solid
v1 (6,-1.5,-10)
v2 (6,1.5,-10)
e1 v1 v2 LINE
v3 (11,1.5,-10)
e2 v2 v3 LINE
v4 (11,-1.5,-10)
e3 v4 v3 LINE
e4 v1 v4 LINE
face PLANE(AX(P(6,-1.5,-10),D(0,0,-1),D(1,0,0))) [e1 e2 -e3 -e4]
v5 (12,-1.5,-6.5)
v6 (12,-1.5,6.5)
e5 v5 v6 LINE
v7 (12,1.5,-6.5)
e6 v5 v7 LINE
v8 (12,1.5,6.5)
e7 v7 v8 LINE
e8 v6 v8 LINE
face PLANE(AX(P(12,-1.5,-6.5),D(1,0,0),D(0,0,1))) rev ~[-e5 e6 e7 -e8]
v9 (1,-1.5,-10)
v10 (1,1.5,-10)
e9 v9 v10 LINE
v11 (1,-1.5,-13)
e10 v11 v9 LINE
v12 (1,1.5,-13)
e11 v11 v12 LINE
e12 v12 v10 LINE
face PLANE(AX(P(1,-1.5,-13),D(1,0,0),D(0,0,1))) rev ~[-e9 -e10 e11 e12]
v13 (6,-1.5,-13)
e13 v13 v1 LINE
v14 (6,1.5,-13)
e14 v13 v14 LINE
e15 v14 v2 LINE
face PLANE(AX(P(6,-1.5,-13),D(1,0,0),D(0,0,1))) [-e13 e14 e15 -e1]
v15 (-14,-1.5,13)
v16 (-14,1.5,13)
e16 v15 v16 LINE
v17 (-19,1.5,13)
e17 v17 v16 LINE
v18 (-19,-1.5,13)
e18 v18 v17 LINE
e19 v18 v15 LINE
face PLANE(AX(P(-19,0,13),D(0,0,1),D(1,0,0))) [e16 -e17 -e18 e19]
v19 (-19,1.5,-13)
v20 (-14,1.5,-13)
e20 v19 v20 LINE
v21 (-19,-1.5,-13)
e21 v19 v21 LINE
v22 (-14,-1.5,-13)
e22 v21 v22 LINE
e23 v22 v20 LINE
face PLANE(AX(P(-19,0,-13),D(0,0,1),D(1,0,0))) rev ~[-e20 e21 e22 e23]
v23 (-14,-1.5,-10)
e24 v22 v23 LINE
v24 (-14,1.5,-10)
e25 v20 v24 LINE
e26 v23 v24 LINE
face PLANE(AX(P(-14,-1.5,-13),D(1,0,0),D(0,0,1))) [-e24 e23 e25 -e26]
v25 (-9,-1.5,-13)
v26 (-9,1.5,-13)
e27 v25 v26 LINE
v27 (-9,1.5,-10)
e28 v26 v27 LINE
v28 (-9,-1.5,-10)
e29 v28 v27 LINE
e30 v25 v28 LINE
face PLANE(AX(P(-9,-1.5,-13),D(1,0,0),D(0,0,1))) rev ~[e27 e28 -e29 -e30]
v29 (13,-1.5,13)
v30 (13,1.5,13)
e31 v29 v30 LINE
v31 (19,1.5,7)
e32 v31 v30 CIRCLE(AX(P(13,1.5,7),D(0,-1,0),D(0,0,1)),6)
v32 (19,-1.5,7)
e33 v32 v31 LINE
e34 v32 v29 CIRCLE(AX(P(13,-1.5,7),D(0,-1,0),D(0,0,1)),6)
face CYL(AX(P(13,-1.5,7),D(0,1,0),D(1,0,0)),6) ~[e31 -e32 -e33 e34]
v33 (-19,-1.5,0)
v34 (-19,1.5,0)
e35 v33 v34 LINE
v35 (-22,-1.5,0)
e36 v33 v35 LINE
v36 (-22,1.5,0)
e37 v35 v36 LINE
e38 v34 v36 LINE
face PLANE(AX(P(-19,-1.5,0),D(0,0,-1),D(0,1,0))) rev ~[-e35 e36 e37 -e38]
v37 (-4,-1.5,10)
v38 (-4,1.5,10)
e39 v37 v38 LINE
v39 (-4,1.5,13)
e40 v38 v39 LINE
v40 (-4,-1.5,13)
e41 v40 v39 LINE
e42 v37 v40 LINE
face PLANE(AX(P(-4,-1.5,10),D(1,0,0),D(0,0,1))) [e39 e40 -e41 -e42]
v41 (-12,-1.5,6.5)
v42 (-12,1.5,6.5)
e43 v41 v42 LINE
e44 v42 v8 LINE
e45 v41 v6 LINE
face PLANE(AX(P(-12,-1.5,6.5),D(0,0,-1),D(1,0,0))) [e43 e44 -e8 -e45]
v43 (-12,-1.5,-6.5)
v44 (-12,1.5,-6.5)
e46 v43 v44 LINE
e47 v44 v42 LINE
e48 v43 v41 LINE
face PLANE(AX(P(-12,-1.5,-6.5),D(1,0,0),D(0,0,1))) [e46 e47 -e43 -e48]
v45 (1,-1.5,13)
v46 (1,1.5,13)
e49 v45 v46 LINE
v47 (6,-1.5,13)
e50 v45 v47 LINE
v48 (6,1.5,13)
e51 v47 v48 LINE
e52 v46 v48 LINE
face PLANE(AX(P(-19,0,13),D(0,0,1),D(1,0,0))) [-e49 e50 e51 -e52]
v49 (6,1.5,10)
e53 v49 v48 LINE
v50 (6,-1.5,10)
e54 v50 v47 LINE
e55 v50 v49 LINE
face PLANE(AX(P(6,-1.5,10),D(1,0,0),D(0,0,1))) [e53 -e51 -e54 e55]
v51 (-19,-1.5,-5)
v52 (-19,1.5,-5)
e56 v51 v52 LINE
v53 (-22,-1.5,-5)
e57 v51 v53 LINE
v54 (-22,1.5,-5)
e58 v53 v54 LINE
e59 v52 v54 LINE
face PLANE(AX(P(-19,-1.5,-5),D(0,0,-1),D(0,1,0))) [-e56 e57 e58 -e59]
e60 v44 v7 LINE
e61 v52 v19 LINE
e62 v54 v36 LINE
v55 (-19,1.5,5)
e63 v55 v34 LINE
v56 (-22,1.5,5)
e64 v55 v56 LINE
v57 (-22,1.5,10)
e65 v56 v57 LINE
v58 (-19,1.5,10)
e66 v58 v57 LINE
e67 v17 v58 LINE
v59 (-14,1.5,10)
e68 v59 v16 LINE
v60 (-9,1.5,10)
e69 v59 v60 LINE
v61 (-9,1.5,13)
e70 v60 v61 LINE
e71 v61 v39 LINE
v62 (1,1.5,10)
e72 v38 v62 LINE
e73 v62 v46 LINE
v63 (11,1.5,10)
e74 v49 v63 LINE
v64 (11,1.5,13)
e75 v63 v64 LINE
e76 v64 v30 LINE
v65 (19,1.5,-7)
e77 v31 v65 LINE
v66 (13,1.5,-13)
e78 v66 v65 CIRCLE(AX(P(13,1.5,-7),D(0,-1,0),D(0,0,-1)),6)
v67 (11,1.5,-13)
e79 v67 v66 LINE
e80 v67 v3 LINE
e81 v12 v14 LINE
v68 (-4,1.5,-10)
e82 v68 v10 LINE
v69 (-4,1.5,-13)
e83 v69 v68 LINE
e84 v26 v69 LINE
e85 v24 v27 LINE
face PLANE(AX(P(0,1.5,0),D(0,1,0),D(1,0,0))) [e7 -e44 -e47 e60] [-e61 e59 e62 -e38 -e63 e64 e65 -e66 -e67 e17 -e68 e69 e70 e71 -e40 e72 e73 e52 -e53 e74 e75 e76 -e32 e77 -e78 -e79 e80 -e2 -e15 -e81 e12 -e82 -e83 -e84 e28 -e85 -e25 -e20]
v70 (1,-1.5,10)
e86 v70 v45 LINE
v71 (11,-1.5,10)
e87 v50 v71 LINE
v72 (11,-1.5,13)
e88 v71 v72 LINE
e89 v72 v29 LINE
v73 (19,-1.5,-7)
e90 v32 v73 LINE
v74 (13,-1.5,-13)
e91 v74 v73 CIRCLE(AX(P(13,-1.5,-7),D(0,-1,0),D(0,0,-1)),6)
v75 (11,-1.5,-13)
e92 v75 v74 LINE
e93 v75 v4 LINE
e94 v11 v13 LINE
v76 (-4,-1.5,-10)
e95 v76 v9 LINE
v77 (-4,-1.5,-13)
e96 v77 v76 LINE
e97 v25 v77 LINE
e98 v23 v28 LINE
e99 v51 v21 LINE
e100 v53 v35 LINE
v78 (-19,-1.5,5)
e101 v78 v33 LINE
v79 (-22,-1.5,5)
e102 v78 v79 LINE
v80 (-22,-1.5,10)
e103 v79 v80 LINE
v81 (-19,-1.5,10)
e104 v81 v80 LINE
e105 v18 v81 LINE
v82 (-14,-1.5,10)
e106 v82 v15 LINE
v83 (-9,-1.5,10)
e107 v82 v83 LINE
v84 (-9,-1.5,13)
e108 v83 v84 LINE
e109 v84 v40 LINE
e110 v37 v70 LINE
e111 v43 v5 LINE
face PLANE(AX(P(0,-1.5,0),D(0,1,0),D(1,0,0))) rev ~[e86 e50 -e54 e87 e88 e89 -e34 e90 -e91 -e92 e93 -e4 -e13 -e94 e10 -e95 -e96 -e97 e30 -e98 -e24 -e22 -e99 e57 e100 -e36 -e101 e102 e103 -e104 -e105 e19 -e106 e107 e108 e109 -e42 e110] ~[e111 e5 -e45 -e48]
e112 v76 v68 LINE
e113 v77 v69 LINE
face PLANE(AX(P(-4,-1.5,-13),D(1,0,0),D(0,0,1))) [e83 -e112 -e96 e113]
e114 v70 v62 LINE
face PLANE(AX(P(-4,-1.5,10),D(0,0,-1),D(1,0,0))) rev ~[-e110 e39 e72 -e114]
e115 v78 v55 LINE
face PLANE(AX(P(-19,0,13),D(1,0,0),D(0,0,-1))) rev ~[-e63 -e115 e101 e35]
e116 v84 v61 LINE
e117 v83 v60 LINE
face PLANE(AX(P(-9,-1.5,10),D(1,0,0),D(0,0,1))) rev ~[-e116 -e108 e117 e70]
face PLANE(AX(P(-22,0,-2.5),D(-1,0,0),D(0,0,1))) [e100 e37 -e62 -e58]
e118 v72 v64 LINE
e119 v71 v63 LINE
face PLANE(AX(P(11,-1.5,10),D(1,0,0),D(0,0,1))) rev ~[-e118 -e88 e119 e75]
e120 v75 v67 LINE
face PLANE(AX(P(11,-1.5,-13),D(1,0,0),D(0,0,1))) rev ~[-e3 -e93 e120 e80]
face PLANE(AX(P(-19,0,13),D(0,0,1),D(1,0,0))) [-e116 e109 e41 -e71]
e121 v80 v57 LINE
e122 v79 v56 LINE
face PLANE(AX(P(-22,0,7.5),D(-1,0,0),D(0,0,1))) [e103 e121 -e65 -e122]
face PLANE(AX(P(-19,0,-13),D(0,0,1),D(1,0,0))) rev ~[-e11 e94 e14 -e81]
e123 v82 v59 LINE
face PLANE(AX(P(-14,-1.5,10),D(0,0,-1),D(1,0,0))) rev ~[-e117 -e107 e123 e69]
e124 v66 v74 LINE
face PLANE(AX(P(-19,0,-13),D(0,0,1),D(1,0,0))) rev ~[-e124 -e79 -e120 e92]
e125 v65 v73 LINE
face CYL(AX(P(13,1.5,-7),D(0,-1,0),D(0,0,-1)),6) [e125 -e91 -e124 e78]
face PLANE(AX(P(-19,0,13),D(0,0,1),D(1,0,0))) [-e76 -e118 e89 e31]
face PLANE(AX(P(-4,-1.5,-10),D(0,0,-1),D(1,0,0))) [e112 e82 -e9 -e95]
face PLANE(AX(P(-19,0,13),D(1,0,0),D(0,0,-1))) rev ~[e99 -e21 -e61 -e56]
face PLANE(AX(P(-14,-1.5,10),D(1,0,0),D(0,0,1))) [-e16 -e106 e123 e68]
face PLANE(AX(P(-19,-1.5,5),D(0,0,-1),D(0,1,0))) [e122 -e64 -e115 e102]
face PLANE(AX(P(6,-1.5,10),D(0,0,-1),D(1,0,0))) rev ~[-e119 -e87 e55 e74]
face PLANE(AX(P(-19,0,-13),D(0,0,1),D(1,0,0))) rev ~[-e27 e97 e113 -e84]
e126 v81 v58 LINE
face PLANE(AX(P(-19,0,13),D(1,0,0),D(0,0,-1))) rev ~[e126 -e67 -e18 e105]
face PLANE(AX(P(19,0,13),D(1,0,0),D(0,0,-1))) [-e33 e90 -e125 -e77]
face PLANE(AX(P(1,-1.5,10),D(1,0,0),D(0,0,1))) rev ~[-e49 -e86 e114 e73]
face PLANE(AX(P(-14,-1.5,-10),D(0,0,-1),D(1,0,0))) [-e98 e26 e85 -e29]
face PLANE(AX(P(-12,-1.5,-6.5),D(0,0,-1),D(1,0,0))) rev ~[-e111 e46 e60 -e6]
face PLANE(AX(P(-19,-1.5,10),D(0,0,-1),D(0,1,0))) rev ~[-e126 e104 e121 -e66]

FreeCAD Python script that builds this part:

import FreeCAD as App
import Part
import Sketcher


def edges_at(feature, points):
    """Names of the edges that pass closest to the given points."""
    edges = feature.Shape.Edges
    near = lambda p: min(range(len(edges)), key=lambda i: edges[i].distToShape(Part.Vertex(*p))[0])
    return sorted({f"Edge{near(p) + 1}" for p in points})

doc = App.newDocument("Part")
params = doc.addObject("Spreadsheet::Sheet", "Params")
for row, (alias, value) in enumerate([
    ("sketch1_width", "38 mm"),
    ("sketch1_height", "26 mm"),
    ("pad1_length", "3 mm"),
    ("sketch2_width", "24 mm"),
    ("sketch2_height", "13 mm"),
    ("pocket1_length", "3 mm"),
    ("sketch3_width", "3 mm"),
    ("sketch3_height", "5 mm"),
    ("pad2_length", "3 mm"),
    ("sketch4_width", "5 mm"),
    ("sketch4_height", "3 mm"),
    ("pocket2_length", "3 mm"),
    ("fillet_radius", "6 mm"),
], start=1):
    params.set(f"A{row}", alias)
    params.set(f"B{row}", "=" + value)
    params.setAlias(f"B{row}", alias)

body = doc.addObject("PartDesign::Body", "Body")

# Sketch on XZ plane
sketch1 = body.newObject("Sketcher::SketchObject", "Sketch")
sketch1.AttachmentSupport = (doc.getObject("XZ_Plane"), [""])
sketch1.MapMode = "FlatFace"
sketch1.addGeometry(Part.LineSegment(App.Vector(-19, -13, 0), App.Vector(-19, 13, 0)), False)
sketch1.addGeometry(Part.LineSegment(App.Vector(-19, 13, 0), App.Vector(19, 13, 0)), False)
sketch1.addGeometry(Part.LineSegment(App.Vector(19, 13, 0), App.Vector(19, -13, 0)), False)
sketch1.addGeometry(Part.LineSegment(App.Vector(19, -13, 0), App.Vector(-19, -13, 0)), False)
sketch1.addConstraint(Sketcher.Constraint("Coincident", 0, 2, 1, 1))
sketch1.addConstraint(Sketcher.Constraint("Coincident", 1, 2, 2, 1))
sketch1.addConstraint(Sketcher.Constraint("Coincident", 2, 2, 3, 1))
sketch1.addConstraint(Sketcher.Constraint("Coincident", 3, 2, 0, 1))
sketch1.addConstraint(Sketcher.Constraint("Vertical", 0))
sketch1.addConstraint(Sketcher.Constraint("Horizontal", 1))
sketch1.addConstraint(Sketcher.Constraint("Vertical", 2))
sketch1.addConstraint(Sketcher.Constraint("Horizontal", 3))
sketch1.addConstraint(Sketcher.Constraint("Symmetric", 0, 2, 2, 2, -1, 1))
sketch1.addConstraint(Sketcher.Constraint("DistanceX", 1, 1, 1, 2, 38.0))
sketch1.addConstraint(Sketcher.Constraint("DistanceY", 0, 1, 0, 2, 26.0))
sketch1.setExpression("Constraints[9]", "Params.sketch1_width")
sketch1.setExpression("Constraints[10]", "Params.sketch1_height")
pad1 = body.newObject("PartDesign::Pad", "Pad")
pad1.Profile = sketch1
pad1.setExpression("Length", "Params.pad1_length")
pad1.Midplane = True

# Sketch on XZ plane
sketch2 = body.newObject("Sketcher::SketchObject", "Sketch001")
sketch2.AttachmentSupport = (doc.getObject("XZ_Plane"), [""])
sketch2.MapMode = "FlatFace"
sketch2.AttachmentOffset = App.Placement(App.Vector(0, 0, 1.5), App.Rotation())
sketch2.addGeometry(Part.LineSegment(App.Vector(-12, 6, 0), App.Vector(-12, -6, 0)), False)
sketch2.addGeometry(Part.LineSegment(App.Vector(-12, -6, 0), App.Vector(12, -6, 0)), False)
sketch2.addGeometry(Part.LineSegment(App.Vector(12, -6, 0), App.Vector(12, 6, 0)), False)
sketch2.addGeometry(Part.LineSegment(App.Vector(12, 6, 0), App.Vector(-12, 6, 0)), False)
sketch2.addConstraint(Sketcher.Constraint("Coincident", 0, 2, 1, 1))
sketch2.addConstraint(Sketcher.Constraint("Coincident", 1, 2, 2, 1))
sketch2.addConstraint(Sketcher.Constraint("Coincident", 2, 2, 3, 1))
sketch2.addConstraint(Sketcher.Constraint("Coincident", 3, 2, 0, 1))
sketch2.addConstraint(Sketcher.Constraint("Vertical", 0))
sketch2.addConstraint(Sketcher.Constraint("Horizontal", 1))
sketch2.addConstraint(Sketcher.Constraint("Vertical", 2))
sketch2.addConstraint(Sketcher.Constraint("Horizontal", 3))
sketch2.addConstraint(Sketcher.Constraint("Symmetric", 0, 2, 2, 2, -1, 1))
sketch2.addConstraint(Sketcher.Constraint("DistanceX", 1, 1, 1, 2, 24.0))
sketch2.addConstraint(Sketcher.Constraint("DistanceY", 0, 2, 0, 1, 13.0))
sketch2.setExpression("Constraints[9]", "Params.sketch2_width")
sketch2.setExpression("Constraints[10]", "Params.sketch2_height")
pocket1 = body.newObject("PartDesign::Pocket", "Pocket")
pocket1.Profile = sketch2
pocket1.setExpression("Length", "Params.pocket1_length")

# Sketch on YZ plane
sketch3 = body.newObject("Sketcher::SketchObject", "Sketch002")
sketch3.AttachmentSupport = (doc.getObject("YZ_Plane"), [""])
sketch3.MapMode = "FlatFace"
sketch3.AttachmentOffset = App.Placement(App.Vector(0, 0, -19), App.Rotation())
sketch3.addGeometry(Part.LineSegment(App.Vector(1.5, -5, 0), App.Vector(-1.5, -5, 0)), False)
sketch3.addGeometry(Part.LineSegment(App.Vector(-1.5, -5, 0), App.Vector(-1.5, 0, 0)), False)
sketch3.addGeometry(Part.LineSegment(App.Vector(-1.5, 0, 0), App.Vector(1.5, 0, 0)), False)
sketch3.addGeometry(Part.LineSegment(App.Vector(1.5, 0, 0), App.Vector(1.5, -5, 0)), False)
sketch3.addGeometry(Part.LineSegment(App.Vector(1.5, 5, 0), App.Vector(-1.5, 5, 0)), False)
sketch3.addGeometry(Part.LineSegment(App.Vector(-1.5, 5, 0), App.Vector(-1.5, 10, 0)), False)
sketch3.addGeometry(Part.LineSegment(App.Vector(-1.5, 10, 0), App.Vector(1.5, 10, 0)), False)
sketch3.addGeometry(Part.LineSegment(App.Vector(1.5, 10, 0), App.Vector(1.5, 5, 0)), False)
sketch3.addConstraint(Sketcher.Constraint("Coincident", 0, 2, 1, 1))
sketch3.addConstraint(Sketcher.Constraint("Coincident", 1, 2, 2, 1))
sketch3.addConstraint(Sketcher.Constraint("Coincident", 2, 2, 3, 1))
sketch3.addConstraint(Sketcher.Constraint("Coincident", 3, 2, 0, 1))
sketch3.addConstraint(Sketcher.Constraint("Coincident", 4, 2, 5, 1))
sketch3.addConstraint(Sketcher.Constraint("Coincident", 5, 2, 6, 1))
sketch3.addConstraint(Sketcher.Constraint("Coincident", 6, 2, 7, 1))
sketch3.addConstraint(Sketcher.Constraint("Coincident", 7, 2, 4, 1))
sketch3.addConstraint(Sketcher.Constraint("Horizontal", 0))
sketch3.addConstraint(Sketcher.Constraint("Vertical", 1))
sketch3.addConstraint(Sketcher.Constraint("Horizontal", 2))
sketch3.addConstraint(Sketcher.Constraint("Vertical", 3))
sketch3.addConstraint(Sketcher.Constraint("Horizontal", 4))
sketch3.addConstraint(Sketcher.Constraint("Vertical", 5))
sketch3.addConstraint(Sketcher.Constraint("Horizontal", 6))
sketch3.addConstraint(Sketcher.Constraint("Vertical", 7))
sketch3.addConstraint(Sketcher.Constraint("Symmetric", 1, 2, 2, 2, -1, 1))
sketch3.addConstraint(Sketcher.Constraint("Symmetric", 3, 2, 4, 2, -1, 1))
sketch3.addConstraint(Sketcher.Constraint("Vertical", 3, 2, 6, 2))
sketch3.addConstraint(Sketcher.Constraint("Equal", 3, 5))
sketch3.addConstraint(Sketcher.Constraint("DistanceX", 0, 2, 0, 1, 3.0))
sketch3.addConstraint(Sketcher.Constraint("DistanceY", 1, 1, 1, 2, 5.0))
sketch3.setExpression("Constraints[20]", "Params.sketch3_width")
sketch3.setExpression("Constraints[21]", "Params.sketch3_height")
pad2 = body.newObject("PartDesign::Pad", "Pad001")
pad2.Profile = sketch3
pad2.setExpression("Length", "Params.pad2_length")
pad2.Reversed = True

# Sketch on XZ plane
sketch4 = body.newObject("Sketcher::SketchObject", "Sketch003")
sketch4.AttachmentSupport = (doc.getObject("XZ_Plane"), [""])
sketch4.MapMode = "FlatFace"
sketch4.AttachmentOffset = App.Placement(App.Vector(0, 0, 1.5), App.Rotation())
sketch4.addGeometry(Part.LineSegment(App.Vector(-14, -10, 0), App.Vector(-14, -13, 0)), False)
sketch4.addGeometry(Part.LineSegment(App.Vector(-14, -13, 0), App.Vector(-9, -13, 0)), False)
sketch4.addGeometry(Part.LineSegment(App.Vector(-9, -13, 0), App.Vector(-9, -10, 0)), False)
sketch4.addGeometry(Part.LineSegment(App.Vector(-9, -10, 0), App.Vector(-14, -10, 0)), False)
sketch4.addGeometry(Part.LineSegment(App.Vector(-14, 13, 0), App.Vector(-14, 10, 0)), False)
sketch4.addGeometry(Part.LineSegment(App.Vector(-14, 10, 0), App.Vector(-9, 10, 0)), False)
sketch4.addGeometry(Part.LineSegment(App.Vector(-9, 10, 0), App.Vector(-9, 13, 0)), False)
sketch4.addGeometry(Part.LineSegment(App.Vector(-9, 13, 0), App.Vector(-14, 13, 0)), False)
sketch4.addGeometry(Part.LineSegment(App.Vector(-4, -10, 0), App.Vector(-4, -13, 0)), False)
sketch4.addGeometry(Part.LineSegment(App.Vector(-4, -13, 0), App.Vector(1, -13, 0)), False)
sketch4.addGeometry(Part.LineSegment(App.Vector(1, -13, 0), App.Vector(1, -10, 0)), False)
sketch4.addGeometry(Part.LineSegment(App.Vector(1, -10, 0), App.Vector(-4, -10, 0)), False)
sketch4.addGeometry(Part.LineSegment(App.Vector(-4, 13, 0), App.Vector(-4, 10, 0)), False)
sketch4.addGeometry(Part.LineSegment(App.Vector(-4, 10, 0), App.Vector(1, 10, 0)), False)
sketch4.addGeometry(Part.LineSegment(App.Vector(1, 10, 0), App.Vector(1, 13, 0)), False)
sketch4.addGeometry(Part.LineSegment(App.Vector(1, 13, 0), App.Vector(-4, 13, 0)), False)
sketch4.addGeometry(Part.LineSegment(App.Vector(6, -10, 0), App.Vector(6, -13, 0)), False)
sketch4.addGeometry(Part.LineSegment(App.Vector(6, -13, 0), App.Vector(11, -13, 0)), False)
sketch4.addGeometry(Part.LineSegment(App.Vector(11, -13, 0), App.Vector(11, -10, 0)), False)
sketch4.addGeometry(Part.LineSegment(App.Vector(11, -10, 0), App.Vector(6, -10, 0)), False)
sketch4.addGeometry(Part.LineSegment(App.Vector(6, 13, 0), App.Vector(6, 10, 0)), False)
sketch4.addGeometry(Part.LineSegment(App.Vector(6, 10, 0), App.Vector(11, 10, 0)), False)
sketch4.addGeometry(Part.LineSegment(App.Vector(11, 10, 0), App.Vector(11, 13, 0)), False)
sketch4.addGeometry(Part.LineSegment(App.Vector(11, 13, 0), App.Vector(6, 13, 0)), False)
sketch4.addConstraint(Sketcher.Constraint("Coincident", 0, 2, 1, 1))
sketch4.addConstraint(Sketcher.Constraint("Coincident", 1, 2, 2, 1))
sketch4.addConstraint(Sketcher.Constraint("Coincident", 2, 2, 3, 1))
sketch4.addConstraint(Sketcher.Constraint("Coincident", 3, 2, 0, 1))
sketch4.addConstraint(Sketcher.Constraint("Coincident", 4, 2, 5, 1))
sketch4.addConstraint(Sketcher.Constraint("Coincident", 5, 2, 6, 1))
sketch4.addConstraint(Sketcher.Constraint("Coincident", 6, 2, 7, 1))
sketch4.addConstraint(Sketcher.Constraint("Coincident", 7, 2, 4, 1))
sketch4.addConstraint(Sketcher.Constraint("Coincident", 8, 2, 9, 1))
sketch4.addConstraint(Sketcher.Constraint("Coincident", 9, 2, 10, 1))
sketch4.addConstraint(Sketcher.Constraint("Coincident", 10, 2, 11, 1))
sketch4.addConstraint(Sketcher.Constraint("Coincident", 11, 2, 8, 1))
sketch4.addConstraint(Sketcher.Constraint("Coincident", 12, 2, 13, 1))
sketch4.addConstraint(Sketcher.Constraint("Coincident", 13, 2, 14, 1))
sketch4.addConstraint(Sketcher.Constraint("Coincident", 14, 2, 15, 1))
sketch4.addConstraint(Sketcher.Constraint("Coincident", 15, 2, 12, 1))
sketch4.addConstraint(Sketcher.Constraint("Coincident", 16, 2, 17, 1))
sketch4.addConstraint(Sketcher.Constraint("Coincident", 17, 2, 18, 1))
sketch4.addConstraint(Sketcher.Constraint("Coincident", 18, 2, 19, 1))
sketch4.addConstraint(Sketcher.Constraint("Coincident", 19, 2, 16, 1))
sketch4.addConstraint(Sketcher.Constraint("Coincident", 20, 2, 21, 1))
sketch4.addConstraint(Sketcher.Constraint("Coincident", 21, 2, 22, 1))
sketch4.addConstraint(Sketcher.Constraint("Coincident", 22, 2, 23, 1))
sketch4.addConstraint(Sketcher.Constraint("Coincident", 23, 2, 20, 1))
sketch4.addConstraint(Sketcher.Constraint("Vertical", 0))
sketch4.addConstraint(Sketcher.Constraint("Horizontal", 1))
sketch4.addConstraint(Sketcher.Constraint("Vertical", 2))
sketch4.addConstraint(Sketcher.Constraint("Horizontal", 3))
sketch4.addConstraint(Sketcher.Constraint("Vertical", 4))
sketch4.addConstraint(Sketcher.Constraint("Horizontal", 5))
sketch4.addConstraint(Sketcher.Constraint("Vertical", 6))
sketch4.addConstraint(Sketcher.Constraint("Horizontal", 7))
sketch4.addConstraint(Sketcher.Constraint("Vertical", 8))
sketch4.addConstraint(Sketcher.Constraint("Horizontal", 9))
sketch4.addConstraint(Sketcher.Constraint("Vertical", 10))
sketch4.addConstraint(Sketcher.Constraint("Horizontal", 11))
sketch4.addConstraint(Sketcher.Constraint("Vertical", 12))
sketch4.addConstraint(Sketcher.Constraint("Horizontal", 13))
sketch4.addConstraint(Sketcher.Constraint("Vertical", 14))
sketch4.addConstraint(Sketcher.Constraint("Horizontal", 15))
sketch4.addConstraint(Sketcher.Constraint("Vertical", 16))
sketch4.addConstraint(Sketcher.Constraint("Horizontal", 17))
sketch4.addConstraint(Sketcher.Constraint("Vertical", 18))
sketch4.addConstraint(Sketcher.Constraint("Horizontal", 19))
sketch4.addConstraint(Sketcher.Constraint("Vertical", 20))
sketch4.addConstraint(Sketcher.Constraint("Horizontal", 21))
sketch4.addConstraint(Sketcher.Constraint("Vertical", 22))
sketch4.addConstraint(Sketcher.Constraint("Horizontal", 23))
sketch4.addConstraint(Sketcher.Constraint("Symmetric", 3, 2, 4, 2, -1))
sketch4.addConstraint(Sketcher.Constraint("Symmetric", 1, 2, 6, 2, -1))
sketch4.addConstraint(Sketcher.Constraint("Symmetric", 11, 2, 12, 2, -1))
sketch4.addConstraint(Sketcher.Constraint("Symmetric", 9, 2, 14, 2, -1))
sketch4.addConstraint(Sketcher.Constraint("Symmetric", 19, 2, 20, 2, -1))
sketch4.addConstraint(Sketcher.Constraint("Symmetric", 17, 2, 22, 2, -1))
sketch4.addConstraint(Sketcher.Constraint("Horizontal", 1, 2, 8, 2))
sketch4.addConstraint(Sketcher.Constraint("Horizontal", 3, 2, 10, 2))
sketch4.addConstraint(Sketcher.Constraint("Horizontal", 9, 2, 16, 2))
sketch4.addConstraint(Sketcher.Constraint("Horizontal", 11, 2, 18, 2))
sketch4.addConstraint(Sketcher.Constraint("Equal", 7, 9))
sketch4.addConstraint(Sketcher.Constraint("Equal", 15, 17))
sketch4.addConstraint(Sketcher.Constraint("DistanceX", 1, 1, 1, 2, 5.0))
sketch4.addConstraint(Sketcher.Constraint("DistanceY", 0, 2, 0, 1, 3.0))
sketch4.addConstraint(Sketcher.Constraint("DistanceX", 0, 2, -1, 1, 14.0))
sketch4.addConstraint(Sketcher.Constraint("DistanceY", 0, 2, -1, 1, 13.0))
sketch4.addConstraint(Sketcher.Constraint("DistanceX", 8, 2, -1, 1, 4.0))
sketch4.addConstraint(Sketcher.Constraint("DistanceX", -1, 1, 16, 2, 6.0))
sketch4.setExpression("Constraints[60]", "Params.sketch4_width")
sketch4.setExpression("Constraints[61]", "Params.sketch4_height")
pocket2 = body.newObject("PartDesign::Pocket", "Pocket001")
pocket2.Profile = sketch4
pocket2.setExpression("Length", "Params.pocket2_length")
doc.recompute()

fillet = body.newObject("PartDesign::Fillet", "Fillet")
fillet.Base = (pocket2, edges_at(pocket2, [(19, 0, 13), (19, 0, -13)]))
fillet.setExpression("Radius", "Params.fillet_radius")

doc.recompute()
